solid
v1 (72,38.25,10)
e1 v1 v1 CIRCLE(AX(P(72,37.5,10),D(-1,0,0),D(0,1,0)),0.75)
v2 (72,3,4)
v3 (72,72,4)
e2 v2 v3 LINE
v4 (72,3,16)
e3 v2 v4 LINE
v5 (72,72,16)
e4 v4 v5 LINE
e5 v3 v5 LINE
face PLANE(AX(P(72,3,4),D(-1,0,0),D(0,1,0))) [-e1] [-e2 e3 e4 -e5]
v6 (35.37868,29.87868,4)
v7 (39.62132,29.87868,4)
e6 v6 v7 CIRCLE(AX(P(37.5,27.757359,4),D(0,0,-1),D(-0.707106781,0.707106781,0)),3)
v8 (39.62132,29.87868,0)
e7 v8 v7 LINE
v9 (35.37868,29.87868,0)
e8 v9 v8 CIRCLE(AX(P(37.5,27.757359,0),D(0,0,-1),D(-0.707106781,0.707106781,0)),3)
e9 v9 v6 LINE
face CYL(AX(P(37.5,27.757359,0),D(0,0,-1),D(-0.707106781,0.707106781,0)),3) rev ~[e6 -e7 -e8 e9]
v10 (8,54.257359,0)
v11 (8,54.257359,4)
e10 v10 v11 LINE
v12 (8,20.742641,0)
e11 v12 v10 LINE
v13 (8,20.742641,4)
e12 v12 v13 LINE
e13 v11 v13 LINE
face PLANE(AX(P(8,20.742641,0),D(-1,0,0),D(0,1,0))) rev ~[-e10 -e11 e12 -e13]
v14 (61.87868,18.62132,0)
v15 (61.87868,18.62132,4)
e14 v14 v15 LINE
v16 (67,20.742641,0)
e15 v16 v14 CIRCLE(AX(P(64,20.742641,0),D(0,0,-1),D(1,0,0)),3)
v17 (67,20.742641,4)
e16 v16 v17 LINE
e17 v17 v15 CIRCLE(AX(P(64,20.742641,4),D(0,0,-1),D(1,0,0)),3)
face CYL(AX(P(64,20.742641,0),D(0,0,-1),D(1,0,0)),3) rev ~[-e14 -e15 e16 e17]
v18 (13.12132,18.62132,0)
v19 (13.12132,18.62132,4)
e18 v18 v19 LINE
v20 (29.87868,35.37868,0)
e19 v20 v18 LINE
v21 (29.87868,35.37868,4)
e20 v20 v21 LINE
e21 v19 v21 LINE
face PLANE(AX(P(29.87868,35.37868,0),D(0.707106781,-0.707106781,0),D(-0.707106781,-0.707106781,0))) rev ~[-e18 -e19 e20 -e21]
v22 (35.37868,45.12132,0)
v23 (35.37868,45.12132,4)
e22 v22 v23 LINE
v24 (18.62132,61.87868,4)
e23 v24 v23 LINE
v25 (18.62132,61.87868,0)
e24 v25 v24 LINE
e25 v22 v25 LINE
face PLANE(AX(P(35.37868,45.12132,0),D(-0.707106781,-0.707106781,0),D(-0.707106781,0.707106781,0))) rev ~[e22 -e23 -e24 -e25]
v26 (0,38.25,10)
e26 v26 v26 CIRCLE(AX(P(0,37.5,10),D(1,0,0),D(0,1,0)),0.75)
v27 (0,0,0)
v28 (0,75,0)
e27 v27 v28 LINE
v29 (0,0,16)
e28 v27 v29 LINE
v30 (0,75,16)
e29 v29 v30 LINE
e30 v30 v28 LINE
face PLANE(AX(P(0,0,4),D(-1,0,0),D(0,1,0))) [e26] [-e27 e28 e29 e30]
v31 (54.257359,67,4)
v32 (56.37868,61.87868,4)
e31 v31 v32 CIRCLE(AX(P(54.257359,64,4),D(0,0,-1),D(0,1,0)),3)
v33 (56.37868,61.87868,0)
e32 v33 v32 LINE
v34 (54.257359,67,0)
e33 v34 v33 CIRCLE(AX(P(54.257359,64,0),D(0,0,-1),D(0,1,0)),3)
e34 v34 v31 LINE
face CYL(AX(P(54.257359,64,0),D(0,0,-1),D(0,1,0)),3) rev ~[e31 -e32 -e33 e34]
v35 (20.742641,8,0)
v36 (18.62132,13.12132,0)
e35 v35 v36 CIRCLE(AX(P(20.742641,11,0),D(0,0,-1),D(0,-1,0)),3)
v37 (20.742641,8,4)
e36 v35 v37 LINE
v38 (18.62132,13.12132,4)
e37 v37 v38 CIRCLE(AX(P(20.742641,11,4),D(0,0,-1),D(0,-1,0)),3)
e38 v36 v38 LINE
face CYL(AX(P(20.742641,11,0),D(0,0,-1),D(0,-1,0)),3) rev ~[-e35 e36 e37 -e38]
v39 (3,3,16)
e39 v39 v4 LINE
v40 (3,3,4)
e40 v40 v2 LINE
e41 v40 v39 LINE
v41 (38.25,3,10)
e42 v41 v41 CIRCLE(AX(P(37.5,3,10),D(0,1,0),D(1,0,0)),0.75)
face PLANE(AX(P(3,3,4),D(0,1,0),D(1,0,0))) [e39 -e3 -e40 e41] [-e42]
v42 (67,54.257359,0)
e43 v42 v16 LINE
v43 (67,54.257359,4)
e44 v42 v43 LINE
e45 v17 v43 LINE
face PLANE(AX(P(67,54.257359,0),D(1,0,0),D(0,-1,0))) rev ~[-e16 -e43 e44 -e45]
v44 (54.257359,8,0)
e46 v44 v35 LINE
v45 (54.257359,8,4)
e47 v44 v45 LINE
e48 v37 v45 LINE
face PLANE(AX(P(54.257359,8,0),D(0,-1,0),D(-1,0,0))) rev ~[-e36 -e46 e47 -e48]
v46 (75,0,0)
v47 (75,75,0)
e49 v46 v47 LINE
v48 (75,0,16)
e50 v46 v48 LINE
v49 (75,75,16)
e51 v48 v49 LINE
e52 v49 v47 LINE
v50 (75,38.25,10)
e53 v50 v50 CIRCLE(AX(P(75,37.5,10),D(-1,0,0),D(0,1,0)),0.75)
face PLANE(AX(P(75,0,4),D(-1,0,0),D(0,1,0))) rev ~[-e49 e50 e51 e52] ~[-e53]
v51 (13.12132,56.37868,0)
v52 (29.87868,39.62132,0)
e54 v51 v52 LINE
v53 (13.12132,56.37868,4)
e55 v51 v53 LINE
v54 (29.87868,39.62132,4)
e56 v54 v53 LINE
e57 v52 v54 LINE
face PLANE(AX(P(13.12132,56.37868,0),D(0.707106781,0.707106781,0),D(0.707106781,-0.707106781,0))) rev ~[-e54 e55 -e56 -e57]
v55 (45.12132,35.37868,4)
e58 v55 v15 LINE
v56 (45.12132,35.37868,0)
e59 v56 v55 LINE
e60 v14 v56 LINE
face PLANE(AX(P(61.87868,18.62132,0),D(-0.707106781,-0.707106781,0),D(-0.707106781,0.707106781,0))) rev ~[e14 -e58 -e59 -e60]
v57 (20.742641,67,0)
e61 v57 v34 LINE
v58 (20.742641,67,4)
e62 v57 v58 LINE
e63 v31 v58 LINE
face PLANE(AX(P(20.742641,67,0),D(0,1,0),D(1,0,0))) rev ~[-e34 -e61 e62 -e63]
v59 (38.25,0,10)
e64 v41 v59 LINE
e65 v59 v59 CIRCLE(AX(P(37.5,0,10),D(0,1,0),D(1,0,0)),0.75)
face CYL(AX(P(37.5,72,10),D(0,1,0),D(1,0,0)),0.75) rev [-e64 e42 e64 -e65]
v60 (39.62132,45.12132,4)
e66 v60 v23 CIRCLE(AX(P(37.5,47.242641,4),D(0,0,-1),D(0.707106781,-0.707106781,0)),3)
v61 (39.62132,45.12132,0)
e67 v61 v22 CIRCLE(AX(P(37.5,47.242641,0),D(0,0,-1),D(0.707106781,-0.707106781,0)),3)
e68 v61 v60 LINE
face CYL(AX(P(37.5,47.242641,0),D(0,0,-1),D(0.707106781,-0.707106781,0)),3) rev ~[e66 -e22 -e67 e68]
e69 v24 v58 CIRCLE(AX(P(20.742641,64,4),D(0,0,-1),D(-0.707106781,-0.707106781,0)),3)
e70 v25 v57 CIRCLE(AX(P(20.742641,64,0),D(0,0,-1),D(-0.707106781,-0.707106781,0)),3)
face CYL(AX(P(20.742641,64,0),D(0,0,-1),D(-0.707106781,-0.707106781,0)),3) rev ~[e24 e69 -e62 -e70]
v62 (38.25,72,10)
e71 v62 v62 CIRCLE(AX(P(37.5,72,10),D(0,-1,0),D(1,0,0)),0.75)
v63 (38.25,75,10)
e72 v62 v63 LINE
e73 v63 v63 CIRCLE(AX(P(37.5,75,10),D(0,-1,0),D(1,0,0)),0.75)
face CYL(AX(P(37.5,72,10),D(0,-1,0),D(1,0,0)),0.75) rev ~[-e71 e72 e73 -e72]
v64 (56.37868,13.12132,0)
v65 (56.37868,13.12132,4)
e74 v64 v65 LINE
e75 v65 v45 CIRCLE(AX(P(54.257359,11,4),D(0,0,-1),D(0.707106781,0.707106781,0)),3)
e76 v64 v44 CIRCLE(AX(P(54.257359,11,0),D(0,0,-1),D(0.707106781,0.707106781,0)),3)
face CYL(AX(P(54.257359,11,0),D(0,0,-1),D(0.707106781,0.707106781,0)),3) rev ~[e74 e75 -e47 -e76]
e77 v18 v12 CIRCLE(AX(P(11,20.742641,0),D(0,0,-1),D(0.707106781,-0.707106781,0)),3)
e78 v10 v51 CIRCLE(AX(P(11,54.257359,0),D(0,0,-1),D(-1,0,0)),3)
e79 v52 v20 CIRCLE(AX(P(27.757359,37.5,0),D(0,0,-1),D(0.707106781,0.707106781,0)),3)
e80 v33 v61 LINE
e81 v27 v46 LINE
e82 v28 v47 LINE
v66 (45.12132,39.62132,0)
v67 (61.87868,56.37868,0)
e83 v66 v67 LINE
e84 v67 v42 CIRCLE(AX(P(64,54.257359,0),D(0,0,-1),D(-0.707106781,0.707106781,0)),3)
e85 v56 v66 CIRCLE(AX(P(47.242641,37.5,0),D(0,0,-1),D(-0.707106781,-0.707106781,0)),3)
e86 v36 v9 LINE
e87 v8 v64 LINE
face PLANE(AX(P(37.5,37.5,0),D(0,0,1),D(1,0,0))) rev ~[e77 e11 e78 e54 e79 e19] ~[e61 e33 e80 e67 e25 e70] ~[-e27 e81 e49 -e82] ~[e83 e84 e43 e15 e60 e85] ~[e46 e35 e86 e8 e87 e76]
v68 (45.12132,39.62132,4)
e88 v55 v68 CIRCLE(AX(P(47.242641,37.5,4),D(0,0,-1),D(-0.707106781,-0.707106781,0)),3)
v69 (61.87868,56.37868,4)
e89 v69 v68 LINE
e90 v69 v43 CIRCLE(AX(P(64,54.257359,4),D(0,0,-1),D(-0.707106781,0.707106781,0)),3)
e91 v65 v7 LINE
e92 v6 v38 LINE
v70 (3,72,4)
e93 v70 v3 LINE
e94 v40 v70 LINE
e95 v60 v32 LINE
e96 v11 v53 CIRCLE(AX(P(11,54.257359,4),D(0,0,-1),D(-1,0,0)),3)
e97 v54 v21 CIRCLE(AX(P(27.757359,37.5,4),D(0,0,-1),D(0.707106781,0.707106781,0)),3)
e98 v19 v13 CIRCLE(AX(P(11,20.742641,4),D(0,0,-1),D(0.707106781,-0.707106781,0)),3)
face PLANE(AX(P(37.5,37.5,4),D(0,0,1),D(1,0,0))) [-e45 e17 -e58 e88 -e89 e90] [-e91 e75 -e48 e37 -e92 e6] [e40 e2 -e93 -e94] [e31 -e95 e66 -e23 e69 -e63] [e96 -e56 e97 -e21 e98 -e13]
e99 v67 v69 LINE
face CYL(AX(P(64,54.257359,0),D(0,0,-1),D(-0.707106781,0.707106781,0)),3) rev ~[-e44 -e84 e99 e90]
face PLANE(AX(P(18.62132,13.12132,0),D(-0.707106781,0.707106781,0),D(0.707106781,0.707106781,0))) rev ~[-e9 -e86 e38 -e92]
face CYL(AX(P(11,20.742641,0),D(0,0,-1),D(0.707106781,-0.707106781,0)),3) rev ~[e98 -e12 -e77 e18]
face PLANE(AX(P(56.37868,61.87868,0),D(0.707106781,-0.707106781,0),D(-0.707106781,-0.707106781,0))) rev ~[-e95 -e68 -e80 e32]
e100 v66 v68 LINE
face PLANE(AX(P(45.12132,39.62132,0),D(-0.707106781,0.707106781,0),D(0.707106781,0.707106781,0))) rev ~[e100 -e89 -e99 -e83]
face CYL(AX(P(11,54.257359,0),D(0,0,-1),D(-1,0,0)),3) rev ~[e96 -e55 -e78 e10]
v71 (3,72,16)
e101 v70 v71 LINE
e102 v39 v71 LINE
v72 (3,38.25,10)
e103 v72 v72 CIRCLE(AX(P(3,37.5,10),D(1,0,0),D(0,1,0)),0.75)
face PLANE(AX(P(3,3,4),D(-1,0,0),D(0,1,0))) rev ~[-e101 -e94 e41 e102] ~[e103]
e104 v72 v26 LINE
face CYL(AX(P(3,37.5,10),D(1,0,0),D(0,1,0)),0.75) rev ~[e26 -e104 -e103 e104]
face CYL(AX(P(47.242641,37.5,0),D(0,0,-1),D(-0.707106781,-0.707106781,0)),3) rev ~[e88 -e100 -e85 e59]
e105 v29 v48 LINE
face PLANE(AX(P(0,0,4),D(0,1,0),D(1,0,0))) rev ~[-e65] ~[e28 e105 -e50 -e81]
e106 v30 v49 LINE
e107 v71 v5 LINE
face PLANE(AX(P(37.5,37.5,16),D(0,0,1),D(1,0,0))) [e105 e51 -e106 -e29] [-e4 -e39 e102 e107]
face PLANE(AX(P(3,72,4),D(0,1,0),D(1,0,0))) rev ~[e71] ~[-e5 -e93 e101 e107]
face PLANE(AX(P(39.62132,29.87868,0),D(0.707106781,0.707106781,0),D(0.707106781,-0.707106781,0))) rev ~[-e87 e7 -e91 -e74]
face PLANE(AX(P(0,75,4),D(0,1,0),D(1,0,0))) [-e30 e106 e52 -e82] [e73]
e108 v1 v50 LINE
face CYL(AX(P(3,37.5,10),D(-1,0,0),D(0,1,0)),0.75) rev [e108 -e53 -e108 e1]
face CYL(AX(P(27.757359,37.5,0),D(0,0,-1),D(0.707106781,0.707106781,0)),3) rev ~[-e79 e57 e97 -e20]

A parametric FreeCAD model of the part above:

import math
import FreeCAD as App
import Part
import Sketcher

V = App.Vector


def add_polygon(sketch, points):
    """Adds a closed chain of lines whose ends are joined by coincident constraints."""
    first, n = sketch.GeometryCount, len(points)
    for a, b in zip(points, points[1:] + points[:1]):
        sketch.addGeometry(Part.LineSegment(App.Vector(*a, 0), App.Vector(*b, 0)), False)
    for i in range(n):
        sketch.addConstraint(Sketcher.Constraint("Coincident", first + i, 2, first + (i + 1) % n, 1))

doc = App.newDocument("Part")
body = doc.addObject("PartDesign::Body", "Body")

# Sketch on XY plane
sketch1 = body.newObject("Sketcher::SketchObject", "Sketch")
sketch1.AttachmentSupport = (doc.getObject("XY_Plane"), [""])
sketch1.MapMode = "FlatFace"
add_polygon(sketch1, [(0, 75), (0, 0), (75, 0), (75, 75)])  # lines 0-3
sketch1.addConstraint(Sketcher.Constraint("Vertical", 0))
sketch1.addConstraint(Sketcher.Constraint("Horizontal", 1))
sketch1.addConstraint(Sketcher.Constraint("Vertical", 2))
sketch1.addConstraint(Sketcher.Constraint("Horizontal", 3))
sketch1.addConstraint(Sketcher.Constraint("Coincident", 0, 2, -1, 1))
sketch1.addConstraint(Sketcher.Constraint("Equal", 3, 0))
sketch1.addConstraint(Sketcher.Constraint("DistanceX", 1, 1, 1, 2, 75.0))
pad1 = body.newObject("PartDesign::Pad", "Pad")
pad1.Profile = sketch1
pad1.Length = 4

# Sketch on XY plane
sketch2 = body.newObject("Sketcher::SketchObject", "Sketch001")
sketch2.AttachmentSupport = (doc.getObject("XY_Plane"), [""])
sketch2.MapMode = "FlatFace"
sketch2.AttachmentOffset = App.Placement(V(0, 0, 4), App.Rotation())
add_polygon(sketch2, [(0, 75), (0, 0), (75, 0), (75, 75)])  # lines 0-3
add_polygon(sketch2, [(72, 3), (3, 3), (3, 72), (72, 72)])  # lines 4-7
sketch2.addConstraint(Sketcher.Constraint("Vertical", 0))
sketch2.addConstraint(Sketcher.Constraint("Horizontal", 1))
sketch2.addConstraint(Sketcher.Constraint("Vertical", 2))
sketch2.addConstraint(Sketcher.Constraint("Horizontal", 3))
sketch2.addConstraint(Sketcher.Constraint("Horizontal", 4))
sketch2.addConstraint(Sketcher.Constraint("Vertical", 5))
sketch2.addConstraint(Sketcher.Constraint("Horizontal", 6))
sketch2.addConstraint(Sketcher.Constraint("Vertical", 7))
sketch2.addConstraint(Sketcher.Constraint("Coincident", 0, 2, -1, 1))
sketch2.addConstraint(Sketcher.Constraint("Equal", 3, 0))
sketch2.addConstraint(Sketcher.Constraint("Equal", 6, 5))
sketch2.addConstraint(Sketcher.Constraint("DistanceX", 1, 1, 1, 2, 75.0))
sketch2.addConstraint(Sketcher.Constraint("DistanceX", 4, 2, 4, 1, 69.0))
sketch2.addConstraint(Sketcher.Constraint("DistanceX", -1, 1, 4, 2, 3.0))
sketch2.addConstraint(Sketcher.Constraint("DistanceY", -1, 1, 4, 2, 3.0))
pad2 = body.newObject("PartDesign::Pad", "Pad001")
pad2.Profile = sketch2
pad2.Length = 12

# Sketch on XY plane
sketch3 = body.newObject("Sketcher::SketchObject", "Sketch002")
sketch3.AttachmentSupport = (doc.getObject("XY_Plane"), [""])
sketch3.MapMode = "FlatFace"
sketch3.addGeometry(Part.ArcOfCircle(Part.Circle(V(11, 20.7, 0), V(0, 0, 1), 3), math.radians(180), math.radians(315)), False)
sketch3.addGeometry(Part.LineSegment(V(8, 20.7, 0), V(8, 54.3, 0)), False)
sketch3.addGeometry(Part.ArcOfCircle(Part.Circle(V(11, 54.3, 0), V(0, 0, 1), 3), math.radians(45), math.radians(180)), False)
sketch3.addGeometry(Part.LineSegment(V(13.1, 56.4, 0), V(29.9, 39.6, 0)), False)
sketch3.addGeometry(Part.ArcOfCircle(Part.Circle(V(27.8, 37.5, 0), V(0, 0, 1), 3), math.radians(-45), math.radians(45)), False)
sketch3.addGeometry(Part.LineSegment(V(29.9, 35.4, 0), V(13.1, 18.6, 0)), False)
sketch3.addGeometry(Part.ArcOfCircle(Part.Circle(V(37.5, 27.8, 0), V(0, 0, 1), 3), math.radians(45), math.radians(135)), False)
sketch3.addGeometry(Part.LineSegment(V(39.6, 29.9, 0), V(56.4, 13.1, 0)), False)
sketch3.addGeometry(Part.ArcOfCircle(Part.Circle(V(54.3, 11, 0), V(0, 0, 1), 3), math.radians(-90), math.radians(45)), False)
sketch3.addGeometry(Part.LineSegment(V(54.3, 8, 0), V(20.7, 8, 0)), False)
sketch3.addGeometry(Part.ArcOfCircle(Part.Circle(V(20.7, 11, 0), V(0, 0, 1), 3), math.radians(135), math.radians(270)), False)
sketch3.addGeometry(Part.LineSegment(V(18.6, 13.1, 0), V(35.4, 29.9, 0)), False)
sketch3.addGeometry(Part.LineSegment(V(67, 54.3, 0), V(67, 20.7, 0)), False)
sketch3.addGeometry(Part.ArcOfCircle(Part.Circle(V(64, 20.7, 0), V(0, 0, 1), 3), math.radians(-135), math.radians(0)), False)
sketch3.addGeometry(Part.LineSegment(V(61.9, 18.6, 0), V(45.1, 35.4, 0)), False)
sketch3.addGeometry(Part.ArcOfCircle(Part.Circle(V(47.2, 37.5, 0), V(0, 0, 1), 3), math.radians(135), math.radians(225)), False)
sketch3.addGeometry(Part.LineSegment(V(45.1, 39.6, 0), V(61.9, 56.4, 0)), False)
sketch3.addGeometry(Part.ArcOfCircle(Part.Circle(V(64, 54.3, 0), V(0, 0, 1), 3), math.radians(0), math.radians(135)), False)
sketch3.addGeometry(Part.LineSegment(V(56.4, 61.9, 0), V(39.6, 45.1, 0)), False)
sketch3.addGeometry(Part.ArcOfCircle(Part.Circle(V(37.5, 47.2, 0), V(0, 0, 1), 3), math.radians(-135), math.radians(-45)), False)
sketch3.addGeometry(Part.LineSegment(V(35.4, 45.1, 0), V(18.6, 61.9, 0)), False)
sketch3.addGeometry(Part.ArcOfCircle(Part.Circle(V(20.7, 64, 0), V(0, 0, 1), 3), math.radians(90), math.radians(225)), False)
sketch3.addGeometry(Part.LineSegment(V(20.7, 67, 0), V(54.3, 67, 0)), False)
sketch3.addGeometry(Part.ArcOfCircle(Part.Circle(V(54.3, 64, 0), V(0, 0, 1), 3), math.radians(-45), math.radians(90)), False)
sketch3.addConstraint(Sketcher.Constraint("Tangent", 0, 1, 1, 1))
sketch3.addConstraint(Sketcher.Constraint("Tangent", 1, 2, 2, 2))
sketch3.addConstraint(Sketcher.Constraint("Tangent", 2, 1, 3, 1))
sketch3.addConstraint(Sketcher.Constraint("Tangent", 3, 2, 4, 2))
sketch3.addConstraint(Sketcher.Constraint("Tangent", 4, 1, 5, 1))
sketch3.addConstraint(Sketcher.Constraint("Tangent", 5, 2, 0, 2))
sketch3.addConstraint(Sketcher.Constraint("Tangent", 6, 1, 7, 1))
sketch3.addConstraint(Sketcher.Constraint("Tangent", 7, 2, 8, 2))
sketch3.addConstraint(Sketcher.Constraint("Tangent", 8, 1, 9, 1))
sketch3.addConstraint(Sketcher.Constraint("Tangent", 9, 2, 10, 2))
sketch3.addConstraint(Sketcher.Constraint("Tangent", 10, 1, 11, 1))
sketch3.addConstraint(Sketcher.Constraint("Tangent", 11, 2, 6, 2))
sketch3.addConstraint(Sketcher.Constraint("Tangent", 12, 2, 13, 2))
sketch3.addConstraint(Sketcher.Constraint("Tangent", 13, 1, 14, 1))
sketch3.addConstraint(Sketcher.Constraint("Tangent", 14, 2, 15, 2))
sketch3.addConstraint(Sketcher.Constraint("Tangent", 15, 1, 16, 1))
sketch3.addConstraint(Sketcher.Constraint("Tangent", 16, 2, 17, 2))
sketch3.addConstraint(Sketcher.Constraint("Tangent", 17, 1, 12, 1))
sketch3.addConstraint(Sketcher.Constraint("Tangent", 18, 2, 19, 2))
sketch3.addConstraint(Sketcher.Constraint("Tangent", 19, 1, 20, 1))
sketch3.addConstraint(Sketcher.Constraint("Tangent", 20, 2, 21, 2))
sketch3.addConstraint(Sketcher.Constraint("Tangent", 21, 1, 22, 1))
sketch3.addConstraint(Sketcher.Constraint("Tangent", 22, 2, 23, 2))
sketch3.addConstraint(Sketcher.Constraint("Tangent", 23, 1, 18, 1))
sketch3.addConstraint(Sketcher.Constraint("Vertical", 1))
sketch3.addConstraint(Sketcher.Constraint("Horizontal", 9))
sketch3.addConstraint(Sketcher.Constraint("Vertical", 12))
sketch3.addConstraint(Sketcher.Constraint("Horizontal", 22))
sketch3.addConstraint(Sketcher.Constraint("Equal", 0, 2))
sketch3.addConstraint(Sketcher.Constraint("Equal", 2, 4))
sketch3.addConstraint(Sketcher.Constraint("Equal", 4, 6))
sketch3.addConstraint(Sketcher.Constraint("Equal", 6, 8))
sketch3.addConstraint(Sketcher.Constraint("Equal", 8, 10))
sketch3.addConstraint(Sketcher.Constraint("Equal", 10, 13))
sketch3.addConstraint(Sketcher.Constraint("Equal", 13, 15))
sketch3.addConstraint(Sketcher.Constraint("Equal", 15, 17))
sketch3.addConstraint(Sketcher.Constraint("Equal", 17, 19))
sketch3.addConstraint(Sketcher.Constraint("Equal", 19, 21))
sketch3.addConstraint(Sketcher.Constraint("Equal", 21, 23))
sketch3.addConstraint(Sketcher.Constraint("Perpendicular", 3, 5))
sketch3.addConstraint(Sketcher.Constraint("Perpendicular", 5, 7))
sketch3.addConstraint(Sketcher.Constraint("Perpendicular", 7, 11))
sketch3.addConstraint(Sketcher.Constraint("Perpendicular", 11, 14))
sketch3.addConstraint(Sketcher.Constraint("Perpendicular", 14, 16))
sketch3.addConstraint(Sketcher.Constraint("Parallel", 16, 18))
sketch3.addConstraint(Sketcher.Constraint("Perpendicular", 18, 20))
sketch3.addConstraint(Sketcher.Constraint("Horizontal", 0, 3, 13, 3))
sketch3.addConstraint(Sketcher.Constraint("Horizontal", 4, 3, 15, 3))
sketch3.addConstraint(Sketcher.Constraint("Horizontal", 2, 3, 17, 3))
sketch3.addConstraint(Sketcher.Constraint("Vertical", 6, 3, 19, 3))
sketch3.addConstraint(Sketcher.Constraint("Vertical", 10, 3, 21, 3))
sketch3.addConstraint(Sketcher.Constraint("Equal", 22, 1))
sketch3.addConstraint(Sketcher.Constraint("Radius", 0, 3.0))
sketch3.addConstraint(Sketcher.Constraint("DistanceX", -1, 1, 0, 3, 11.0))
sketch3.addConstraint(Sketcher.Constraint("DistanceY", -1, 1, 8, 3, 11.0))
sketch3.addConstraint(Sketcher.Constraint("DistanceX", -1, 1, 13, 3, 64.0))
sketch3.addConstraint(Sketcher.Constraint("DistanceY", -1, 1, 21, 3, 64.0))
sketch3.addConstraint(Sketcher.Constraint("DistanceY", -1, 1, 4, 3, 37.5))
sketch3.addConstraint(Sketcher.Constraint("DistanceX", -1, 1, 6, 3, 37.5))
sketch3.addConstraint(Sketcher.Constraint("DistanceY", 6, 1, 4, 1, 5.5))
pocket1 = body.newObject("PartDesign::Pocket", "Pocket")
pocket1.Profile = sketch3
pocket1.Length = 25
pocket1.Reversed = True

# Sketch on XZ plane
sketch4 = body.newObject("Sketcher::SketchObject", "Sketch003")
sketch4.AttachmentSupport = (doc.getObject("XZ_Plane"), [""])
sketch4.MapMode = "FlatFace"
sketch4.AttachmentOffset = App.Placement(V(0, 0, -72), App.Rotation())
sketch4.addGeometry(Part.Circle(V(37.5, 10, 0), V(0, 0, 1), 0.8), False)
sketch4.addConstraint(Sketcher.Constraint("Diameter", 0, 1.5))
sketch4.addConstraint(Sketcher.Constraint("DistanceY", -1, 1, 0, 3, 10.0))
sketch4.addConstraint(Sketcher.Constraint("DistanceX", -1, 1, 0, 3, 37.5))
pocket2 = body.newObject("PartDesign::Pocket", "Pocket001")
pocket2.Profile = sketch4
pocket2.Type = "ThroughAll"
pocket2.Midplane = True

# Sketch on YZ plane
sketch5 = body.newObject("Sketcher::SketchObject", "Sketch004")
sketch5.AttachmentSupport = (doc.getObject("YZ_Plane"), [""])
sketch5.MapMode = "FlatFace"
sketch5.AttachmentOffset = App.Placement(V(0, 0, 3), App.Rotation())
sketch5.addGeometry(Part.Circle(V(37.5, 10, 0), V(0, 0, 1), 0.8), False)
sketch5.addConstraint(Sketcher.Constraint("Diameter", 0, 1.5))
sketch5.addConstraint(Sketcher.Constraint("DistanceY", -1, 1, 0, 3, 10.0))
sketch5.addConstraint(Sketcher.Constraint("DistanceX", -1, 1, 0, 3, 37.5))
pocket3 = body.newObject("PartDesign::Pocket", "Pocket002")
pocket3.Profile = sketch5
pocket3.Type = "ThroughAll"
pocket3.Midplane = True

doc.recompute()
